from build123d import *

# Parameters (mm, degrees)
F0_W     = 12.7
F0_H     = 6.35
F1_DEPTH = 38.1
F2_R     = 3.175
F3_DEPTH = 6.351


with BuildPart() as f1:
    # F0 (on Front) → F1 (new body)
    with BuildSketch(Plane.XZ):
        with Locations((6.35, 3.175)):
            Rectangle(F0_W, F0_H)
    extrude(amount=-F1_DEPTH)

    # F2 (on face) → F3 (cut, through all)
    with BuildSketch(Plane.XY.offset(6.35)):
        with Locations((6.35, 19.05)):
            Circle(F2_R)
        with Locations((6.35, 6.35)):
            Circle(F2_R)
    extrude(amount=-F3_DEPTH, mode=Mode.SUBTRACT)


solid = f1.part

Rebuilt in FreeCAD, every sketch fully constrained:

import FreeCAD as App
import Part
import Sketcher
Q = App.Units.Quantity

doc = App.newDocument("Part")
params = doc.addObject("Spreadsheet::Sheet", "Params")
for row, (alias, value) in enumerate([
    ("sketch1_width", "0.5 in"),
    ("sketch1_height", "0.25 in"),
    ("pad1_length", "1.5 in"),
    ("sketch2_diameter", "0.25 in"),
], start=1):
    params.set(f"A{row}", alias)
    params.set(f"B{row}", "=" + value)
    params.setAlias(f"B{row}", alias)

body = doc.addObject("PartDesign::Body", "Body")

sketch1 = body.newObject("Sketcher::SketchObject", "Sketch")
sketch1.AttachmentSupport = (doc.getObject("XZ_Plane"), [""])
sketch1.MapMode = "FlatFace"
sketch1.addGeometry([
    Part.LineSegment(App.Vector(0, 6, 0), App.Vector(0, 0, 0)),
    Part.LineSegment(App.Vector(0, 0, 0), App.Vector(13, 0, 0)),
    Part.LineSegment(App.Vector(13, 0, 0), App.Vector(13, 6, 0)),
    Part.LineSegment(App.Vector(13, 6, 0), App.Vector(0, 6, 0)),
], False)
sketch1.addConstraint([
    Sketcher.Constraint("Coincident", 0, 2, 1, 1),
    Sketcher.Constraint("Coincident", 1, 2, 2, 1),
    Sketcher.Constraint("Coincident", 2, 2, 3, 1),
    Sketcher.Constraint("Coincident", 3, 2, 0, 1),
    Sketcher.Constraint("Vertical", 0),
    Sketcher.Constraint("Horizontal", 1),
    Sketcher.Constraint("Vertical", 2),
    Sketcher.Constraint("Horizontal", 3),
    Sketcher.Constraint("Coincident", 0, 2, -1, 1),
    Sketcher.Constraint("DistanceX", 1, 1, 1, 2, Q("0.5 in")),
    Sketcher.Constraint("DistanceY", 0, 2, 0, 1, Q("0.25 in")),
])
sketch1.setExpression("Constraints[9]", "Params.sketch1_width")
sketch1.setExpression("Constraints[10]", "Params.sketch1_height")
pad1 = body.newObject("PartDesign::Pad", "Pad")
pad1.Profile = sketch1
pad1.setExpression("Length", "Params.pad1_length")
pad1.Reversed = True

sketch2 = body.newObject("Sketcher::SketchObject", "Sketch001")
sketch2.AttachmentSupport = (doc.getObject("XY_Plane"), [""])
sketch2.MapMode = "FlatFace"
sketch2.AttachmentOffset = App.Placement(App.Vector(0, 0, 0.25 * 25.4), App.Rotation())
sketch2.addGeometry([
    Part.Circle(App.Vector(6.3, 19.1, 0), App.Vector(0, 0, 1), 3.2),
    Part.Circle(App.Vector(6.3, 6.3, 0), App.Vector(0, 0, 1), 3.2),
], False)
sketch2.addConstraint([
    Sketcher.Constraint("Equal", 0, 1),
    Sketcher.Constraint("Vertical", 0, 3, 1, 3),
    Sketcher.Constraint("Diameter", 0, Q("0.25 in")),
    Sketcher.Constraint("DistanceY", 1, 3, 0, 3, Q("0.5 in")),
    Sketcher.Constraint("DistanceX", -1, 1, 0, 3, Q("0.25 in")),
    Sketcher.Constraint("DistanceY", -1, 1, 0, 3, Q("0.75 in")),
])
sketch2.setExpression("Constraints[2]", "Params.sketch2_diameter")
pocket1 = body.newObject("PartDesign::Pocket", "Pocket")
pocket1.Profile = sketch2
pocket1.Type = "ThroughAll"

doc.recompute()
